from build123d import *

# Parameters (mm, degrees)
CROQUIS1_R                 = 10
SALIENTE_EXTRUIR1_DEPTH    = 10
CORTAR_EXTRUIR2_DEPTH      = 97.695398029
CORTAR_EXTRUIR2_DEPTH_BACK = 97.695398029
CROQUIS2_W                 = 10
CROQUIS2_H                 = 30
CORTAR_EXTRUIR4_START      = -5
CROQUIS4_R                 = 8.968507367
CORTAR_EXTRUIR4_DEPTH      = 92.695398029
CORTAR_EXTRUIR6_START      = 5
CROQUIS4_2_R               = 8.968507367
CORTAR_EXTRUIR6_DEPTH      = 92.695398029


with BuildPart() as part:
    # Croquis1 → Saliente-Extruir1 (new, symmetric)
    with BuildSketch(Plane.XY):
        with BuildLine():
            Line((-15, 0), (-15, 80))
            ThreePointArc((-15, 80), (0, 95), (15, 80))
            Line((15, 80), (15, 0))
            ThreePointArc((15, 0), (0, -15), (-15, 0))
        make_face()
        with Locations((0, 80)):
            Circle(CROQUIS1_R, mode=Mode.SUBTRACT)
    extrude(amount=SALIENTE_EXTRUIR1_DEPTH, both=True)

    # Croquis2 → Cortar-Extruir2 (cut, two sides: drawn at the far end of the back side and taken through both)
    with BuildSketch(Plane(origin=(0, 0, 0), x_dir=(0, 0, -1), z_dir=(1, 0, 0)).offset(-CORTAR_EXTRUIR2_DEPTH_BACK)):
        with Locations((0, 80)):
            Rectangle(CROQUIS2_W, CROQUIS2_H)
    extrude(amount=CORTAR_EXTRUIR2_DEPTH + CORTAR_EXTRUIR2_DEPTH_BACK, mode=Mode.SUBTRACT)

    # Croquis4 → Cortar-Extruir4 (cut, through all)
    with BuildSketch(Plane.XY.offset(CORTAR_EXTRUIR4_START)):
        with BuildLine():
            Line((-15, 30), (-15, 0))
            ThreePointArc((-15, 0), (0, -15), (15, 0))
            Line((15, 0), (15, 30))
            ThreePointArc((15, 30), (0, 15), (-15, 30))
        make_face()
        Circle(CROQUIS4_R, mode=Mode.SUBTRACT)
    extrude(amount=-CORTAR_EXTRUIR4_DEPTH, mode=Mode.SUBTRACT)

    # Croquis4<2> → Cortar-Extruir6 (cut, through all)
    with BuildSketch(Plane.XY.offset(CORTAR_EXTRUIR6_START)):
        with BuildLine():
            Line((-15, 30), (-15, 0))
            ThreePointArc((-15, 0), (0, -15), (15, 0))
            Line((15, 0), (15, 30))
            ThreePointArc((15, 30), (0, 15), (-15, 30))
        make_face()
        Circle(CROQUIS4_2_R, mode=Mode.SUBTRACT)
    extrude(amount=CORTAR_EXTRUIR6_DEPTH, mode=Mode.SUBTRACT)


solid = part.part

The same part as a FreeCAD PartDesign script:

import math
import FreeCAD as App
import Part
import Sketcher
from FreeCAD import Vector
Q = App.Units.Quantity

doc = App.newDocument("Part")
params = doc.addObject("Spreadsheet::Sheet", "Params")
for row, (alias, value) in enumerate([
    ("sketch1_diameter", "20 mm"),
    ("sketch1_radius", "15 mm"),
    ("sketch1_height", "80 mm"),
    ("pad1_length", "20 mm"),
    ("sketch2_width", "30 mm"),
    ("sketch2_height", "10 mm"),
    ("sketch3_radius", "15 mm"),
    ("sketch3_height", "30 mm"),
    ("sketch4_radius", "15 mm"),
    ("sketch4_height", "30 mm"),
], start=1):
    params.set(f"A{row}", alias)
    params.set(f"B{row}", "=" + value)
    params.setAlias(f"B{row}", alias)

body = doc.addObject("PartDesign::Body", "Body")

sketch1 = body.newObject("Sketcher::SketchObject", "Sketch")
sketch1.AttachmentSupport = (doc.getObject("XY_Plane"), [""])
sketch1.MapMode = "FlatFace"
sketch1.addGeometry(Part.LineSegment(Vector(-15, 80, 0), Vector(-15, 0, 0)), False)
sketch1.addGeometry(Part.ArcOfCircle(Part.Circle(Vector(0, 0, 0), Vector(0, 0, 1), 15), math.radians(180), math.radians(360)), False)
sketch1.addGeometry(Part.LineSegment(Vector(15, 0, 0), Vector(15, 80, 0)), False)
sketch1.addGeometry(Part.ArcOfCircle(Part.Circle(Vector(0, 80, 0), Vector(0, 0, 1), 15), math.radians(0), math.radians(180)), False)
sketch1.addGeometry(Part.Circle(Vector(0, 80, 0), Vector(0, 0, 1), 10), False)
sketch1.addConstraint(Sketcher.Constraint("Tangent", 0, 2, 1, 1))
sketch1.addConstraint(Sketcher.Constraint("Tangent", 1, 2, 2, 1))
sketch1.addConstraint(Sketcher.Constraint("Tangent", 2, 2, 3, 1))
sketch1.addConstraint(Sketcher.Constraint("Tangent", 3, 2, 0, 1))
sketch1.addConstraint(Sketcher.Constraint("Vertical", 0))
sketch1.addConstraint(Sketcher.Constraint("Vertical", 2))
sketch1.addConstraint(Sketcher.Constraint("Coincident", 1, 3, -1, 1))
sketch1.addConstraint(Sketcher.Constraint("Coincident", 4, 3, 3, 3))
sketch1.addConstraint(Sketcher.Constraint("Diameter", 4, Q("20 mm")))
sketch1.addConstraint(Sketcher.Constraint("Radius", 1, Q("15 mm")))
sketch1.addConstraint(Sketcher.Constraint("DistanceY", 0, 2, 0, 1, Q("80 mm")))
sketch1.setExpression("Constraints[8]", "Params.sketch1_diameter")
sketch1.setExpression("Constraints[9]", "Params.sketch1_radius")
sketch1.setExpression("Constraints[10]", "Params.sketch1_height")
pad1 = body.newObject("PartDesign::Pad", "Pad")
pad1.Profile = sketch1
pad1.setExpression("Length", "Params.pad1_length")
pad1.Midplane = True

sketch2 = body.newObject("Sketcher::SketchObject", "Sketch001")
sketch2.AttachmentSupport = (doc.getObject("YZ_Plane"), [""])
sketch2.MapMode = "FlatFace"
sketch2.addGeometry(Part.LineSegment(Vector(95, 5, 0), Vector(65, 5, 0)), False)
sketch2.addGeometry(Part.LineSegment(Vector(65, 5, 0), Vector(65, -5, 0)), False)
sketch2.addGeometry(Part.LineSegment(Vector(65, -5, 0), Vector(95, -5, 0)), False)
sketch2.addGeometry(Part.LineSegment(Vector(95, -5, 0), Vector(95, 5, 0)), False)
sketch2.addConstraint(Sketcher.Constraint("Coincident", 0, 2, 1, 1))
sketch2.addConstraint(Sketcher.Constraint("Coincident", 1, 2, 2, 1))
sketch2.addConstraint(Sketcher.Constraint("Coincident", 2, 2, 3, 1))
sketch2.addConstraint(Sketcher.Constraint("Coincident", 3, 2, 0, 1))
sketch2.addConstraint(Sketcher.Constraint("Horizontal", 0))
sketch2.addConstraint(Sketcher.Constraint("Vertical", 1))
sketch2.addConstraint(Sketcher.Constraint("Horizontal", 2))
sketch2.addConstraint(Sketcher.Constraint("Vertical", 3))
sketch2.addConstraint(Sketcher.Constraint("DistanceX", 0, 2, 0, 1, Q("30 mm")))
sketch2.addConstraint(Sketcher.Constraint("DistanceY", 1, 2, 1, 1, Q("10 mm")))
sketch2.addConstraint(Sketcher.Constraint("DistanceX", -1, 1, 0, 2, Q("65 mm")))
sketch2.addConstraint(Sketcher.Constraint("DistanceY", -1, 1, 0, 2, Q("5 mm")))
sketch2.setExpression("Constraints[8]", "Params.sketch2_width")
sketch2.setExpression("Constraints[9]", "Params.sketch2_height")
pocket1 = body.newObject("PartDesign::Pocket", "Pocket")
pocket1.Profile = sketch2
pocket1.Type = "ThroughAll"
pocket1.Midplane = True

sketch3 = body.newObject("Sketcher::SketchObject", "Sketch002")
sketch3.AttachmentSupport = (doc.getObject("XY_Plane"), [""])
sketch3.MapMode = "FlatFace"
sketch3.AttachmentOffset = App.Placement(Vector(0, 0, -5), App.Rotation())
sketch3.addGeometry(Part.LineSegment(Vector(-15, 30, 0), Vector(-15, 0, 0)), False)
sketch3.addGeometry(Part.ArcOfCircle(Part.Circle(Vector(0, 0, 0), Vector(0, 0, 1), 15), math.radians(180), math.radians(360)), False)
sketch3.addGeometry(Part.LineSegment(Vector(15, 0, 0), Vector(15, 30, 0)), False)
sketch3.addGeometry(Part.ArcOfCircle(Part.Circle(Vector(0, 30, 0), Vector(0, 0, 1), 15), math.radians(180), math.radians(360)), False)
sketch3.addGeometry(Part.Circle(Vector(0, 0, 0), Vector(0, 0, 1), 9), False)
sketch3.addConstraint(Sketcher.Constraint("Tangent", 0, 2, 1, 1))
sketch3.addConstraint(Sketcher.Constraint("Tangent", 1, 2, 2, 1))
sketch3.addConstraint(Sketcher.Constraint("Tangent", 2, 2, 3, 2))
sketch3.addConstraint(Sketcher.Constraint("Tangent", 3, 1, 0, 1))
sketch3.addConstraint(Sketcher.Constraint("Vertical", 0))
sketch3.addConstraint(Sketcher.Constraint("Vertical", 2))
sketch3.addConstraint(Sketcher.Constraint("Coincident", 1, 3, -1, 1))
sketch3.addConstraint(Sketcher.Constraint("Coincident", 4, 3, -1, 1))
sketch3.addConstraint(Sketcher.Constraint("Radius", 1, Q("15 mm")))
sketch3.addConstraint(Sketcher.Constraint("DistanceY", 0, 2, 0, 1, Q("30 mm")))
sketch3.addConstraint(Sketcher.Constraint("Diameter", 4, Q("17.937015 mm")))
sketch3.setExpression("Constraints[8]", "Params.sketch3_radius")
sketch3.setExpression("Constraints[9]", "Params.sketch3_height")
pocket2 = body.newObject("PartDesign::Pocket", "Pocket001")
pocket2.Profile = sketch3
pocket2.Type = "ThroughAll"

sketch4 = body.newObject("Sketcher::SketchObject", "Sketch003")
sketch4.AttachmentSupport = (doc.getObject("XY_Plane"), [""])
sketch4.MapMode = "FlatFace"
sketch4.AttachmentOffset = App.Placement(Vector(0, 0, 5), App.Rotation())
sketch4.addGeometry(Part.LineSegment(Vector(-15, 30, 0), Vector(-15, 0, 0)), False)
sketch4.addGeometry(Part.ArcOfCircle(Part.Circle(Vector(0, 0, 0), Vector(0, 0, 1), 15), math.radians(180), math.radians(360)), False)
sketch4.addGeometry(Part.LineSegment(Vector(15, 0, 0), Vector(15, 30, 0)), False)
sketch4.addGeometry(Part.ArcOfCircle(Part.Circle(Vector(0, 30, 0), Vector(0, 0, 1), 15), math.radians(180), math.radians(360)), False)
sketch4.addGeometry(Part.Circle(Vector(0, 0, 0), Vector(0, 0, 1), 9), False)
sketch4.addConstraint(Sketcher.Constraint("Tangent", 0, 2, 1, 1))
sketch4.addConstraint(Sketcher.Constraint("Tangent", 1, 2, 2, 1))
sketch4.addConstraint(Sketcher.Constraint("Tangent", 2, 2, 3, 2))
sketch4.addConstraint(Sketcher.Constraint("Tangent", 3, 1, 0, 1))
sketch4.addConstraint(Sketcher.Constraint("Vertical", 0))
sketch4.addConstraint(Sketcher.Constraint("Vertical", 2))
sketch4.addConstraint(Sketcher.Constraint("Coincident", 1, 3, -1, 1))
sketch4.addConstraint(Sketcher.Constraint("Coincident", 4, 3, -1, 1))
sketch4.addConstraint(Sketcher.Constraint("Radius", 1, Q("15 mm")))
sketch4.addConstraint(Sketcher.Constraint("DistanceY", 0, 2, 0, 1, Q("30 mm")))
sketch4.addConstraint(Sketcher.Constraint("Diameter", 4, Q("17.937015 mm")))
sketch4.setExpression("Constraints[8]", "Params.sketch4_radius")
sketch4.setExpression("Constraints[9]", "Params.sketch4_height")
pocket3 = body.newObject("PartDesign::Pocket", "Pocket002")
pocket3.Profile = sketch4
pocket3.Type = "ThroughAll"
pocket3.Reversed = True

doc.recompute()
